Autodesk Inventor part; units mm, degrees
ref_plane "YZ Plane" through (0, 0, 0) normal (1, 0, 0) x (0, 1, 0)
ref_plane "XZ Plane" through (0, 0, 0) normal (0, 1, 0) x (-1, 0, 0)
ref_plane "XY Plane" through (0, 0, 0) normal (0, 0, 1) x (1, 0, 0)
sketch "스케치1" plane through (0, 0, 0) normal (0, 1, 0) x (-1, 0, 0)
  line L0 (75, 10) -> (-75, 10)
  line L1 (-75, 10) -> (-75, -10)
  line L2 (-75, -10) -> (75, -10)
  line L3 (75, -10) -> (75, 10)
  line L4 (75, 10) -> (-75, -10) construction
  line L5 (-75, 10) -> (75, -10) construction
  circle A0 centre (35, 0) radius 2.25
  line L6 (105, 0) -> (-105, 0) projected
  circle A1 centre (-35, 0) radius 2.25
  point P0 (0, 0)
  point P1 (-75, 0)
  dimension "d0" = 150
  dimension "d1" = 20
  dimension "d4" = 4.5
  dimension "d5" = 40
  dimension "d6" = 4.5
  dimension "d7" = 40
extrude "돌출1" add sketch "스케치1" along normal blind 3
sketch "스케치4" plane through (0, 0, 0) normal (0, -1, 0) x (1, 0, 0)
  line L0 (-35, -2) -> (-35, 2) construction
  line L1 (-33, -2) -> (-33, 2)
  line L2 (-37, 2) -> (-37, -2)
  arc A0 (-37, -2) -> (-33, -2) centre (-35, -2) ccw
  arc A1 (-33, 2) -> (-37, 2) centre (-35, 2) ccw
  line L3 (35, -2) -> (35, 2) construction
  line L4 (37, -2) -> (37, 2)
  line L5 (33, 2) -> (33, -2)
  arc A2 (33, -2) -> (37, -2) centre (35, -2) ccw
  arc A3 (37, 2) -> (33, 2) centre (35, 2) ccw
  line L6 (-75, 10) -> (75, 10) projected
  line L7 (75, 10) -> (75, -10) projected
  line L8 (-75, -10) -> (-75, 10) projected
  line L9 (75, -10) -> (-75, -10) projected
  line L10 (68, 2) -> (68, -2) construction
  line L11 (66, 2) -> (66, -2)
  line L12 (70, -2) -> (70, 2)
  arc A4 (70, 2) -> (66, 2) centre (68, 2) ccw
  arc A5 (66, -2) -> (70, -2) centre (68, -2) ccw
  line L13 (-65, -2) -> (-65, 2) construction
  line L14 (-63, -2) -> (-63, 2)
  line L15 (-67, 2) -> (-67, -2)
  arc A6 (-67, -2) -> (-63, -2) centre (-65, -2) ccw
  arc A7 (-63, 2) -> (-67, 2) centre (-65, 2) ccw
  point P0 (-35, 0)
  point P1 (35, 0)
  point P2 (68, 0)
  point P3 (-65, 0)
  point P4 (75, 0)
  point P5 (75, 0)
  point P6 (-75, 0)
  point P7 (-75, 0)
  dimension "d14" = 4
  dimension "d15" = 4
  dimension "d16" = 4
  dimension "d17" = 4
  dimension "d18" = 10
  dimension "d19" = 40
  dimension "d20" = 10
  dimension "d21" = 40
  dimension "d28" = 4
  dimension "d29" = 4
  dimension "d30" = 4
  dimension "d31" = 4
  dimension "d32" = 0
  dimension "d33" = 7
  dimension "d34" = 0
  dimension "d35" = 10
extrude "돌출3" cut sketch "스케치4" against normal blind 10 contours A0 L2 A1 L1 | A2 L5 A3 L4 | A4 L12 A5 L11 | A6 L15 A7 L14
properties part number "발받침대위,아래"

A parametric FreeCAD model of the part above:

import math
import FreeCAD as App
import Part
import Sketcher
from FreeCAD import Vector
Q = App.Units.Quantity

doc = App.newDocument("Part")
body = doc.addObject("PartDesign::Body", "Body")

# Sketch on XZ plane
sketch1 = body.newObject("Sketcher::SketchObject", "Sketch")
sketch1.AttachmentSupport = (doc.getObject("XZ_Plane"), [""])
sketch1.MapMode = "FlatFace"
sketch1.addGeometry(Part.LineSegment(Vector(-75, 10, 0), Vector(75, 10, 0)), False)
sketch1.addGeometry(Part.LineSegment(Vector(75, 10, 0), Vector(75, -10, 0)), False)
sketch1.addGeometry(Part.LineSegment(Vector(75, -10, 0), Vector(-75, -10, 0)), False)
sketch1.addGeometry(Part.LineSegment(Vector(-75, -10, 0), Vector(-75, 10, 0)), False)
sketch1.addConstraint(Sketcher.Constraint("Coincident", 0, 2, 1, 1))
sketch1.addConstraint(Sketcher.Constraint("Coincident", 1, 2, 2, 1))
sketch1.addConstraint(Sketcher.Constraint("Coincident", 2, 2, 3, 1))
sketch1.addConstraint(Sketcher.Constraint("Coincident", 3, 2, 0, 1))
sketch1.addConstraint(Sketcher.Constraint("Horizontal", 0))
sketch1.addConstraint(Sketcher.Constraint("Vertical", 1))
sketch1.addConstraint(Sketcher.Constraint("Horizontal", 2))
sketch1.addConstraint(Sketcher.Constraint("Vertical", 3))
sketch1.addConstraint(Sketcher.Constraint("Symmetric", 0, 2, 2, 2, -1, 1))
sketch1.addConstraint(Sketcher.Constraint("DistanceX", 0, 1, 0, 2, Q("150 mm")))
sketch1.addConstraint(Sketcher.Constraint("DistanceY", 1, 2, 1, 1, Q("20 mm")))
pad1 = body.newObject("PartDesign::Pad", "Pad")
pad1.Profile = sketch1
pad1.Length = 3
pad1.Reversed = True

# Sketch on XZ plane
sketch2 = body.newObject("Sketcher::SketchObject", "Sketch001")
sketch2.AttachmentSupport = (doc.getObject("XZ_Plane"), [""])
sketch2.MapMode = "FlatFace"
sketch2.addGeometry(Part.ArcOfCircle(Part.Circle(Vector(-35, -2, 0), Vector(0, 0, 1), 2), math.radians(180), math.radians(360)), False)
sketch2.addGeometry(Part.LineSegment(Vector(-33, -2, 0), Vector(-33, 2, 0)), False)
sketch2.addGeometry(Part.ArcOfCircle(Part.Circle(Vector(-35, 2, 0), Vector(0, 0, 1), 2), math.radians(0), math.radians(180)), False)
sketch2.addGeometry(Part.LineSegment(Vector(-37, 2, 0), Vector(-37, -2, 0)), False)
sketch2.addGeometry(Part.ArcOfCircle(Part.Circle(Vector(35, -2, 0), Vector(0, 0, 1), 2), math.radians(180), math.radians(360)), False)
sketch2.addGeometry(Part.LineSegment(Vector(37, -2, 0), Vector(37, 2, 0)), False)
sketch2.addGeometry(Part.ArcOfCircle(Part.Circle(Vector(35, 2, 0), Vector(0, 0, 1), 2), math.radians(0), math.radians(180)), False)
sketch2.addGeometry(Part.LineSegment(Vector(33, 2, 0), Vector(33, -2, 0)), False)
sketch2.addGeometry(Part.ArcOfCircle(Part.Circle(Vector(68, 2, 0), Vector(0, 0, 1), 2), math.radians(0), math.radians(180)), False)
sketch2.addGeometry(Part.LineSegment(Vector(66, 2, 0), Vector(66, -2, 0)), False)
sketch2.addGeometry(Part.ArcOfCircle(Part.Circle(Vector(68, -2, 0), Vector(0, 0, 1), 2), math.radians(180), math.radians(360)), False)
sketch2.addGeometry(Part.LineSegment(Vector(70, -2, 0), Vector(70, 2, 0)), False)
sketch2.addGeometry(Part.ArcOfCircle(Part.Circle(Vector(-65, -2, 0), Vector(0, 0, 1), 2), math.radians(180), math.radians(360)), False)
sketch2.addGeometry(Part.LineSegment(Vector(-63, -2, 0), Vector(-63, 2, 0)), False)
sketch2.addGeometry(Part.ArcOfCircle(Part.Circle(Vector(-65, 2, 0), Vector(0, 0, 1), 2), math.radians(0), math.radians(180)), False)
sketch2.addGeometry(Part.LineSegment(Vector(-67, 2, 0), Vector(-67, -2, 0)), False)
sketch2.addConstraint(Sketcher.Constraint("Tangent", 0, 2, 1, 1))
sketch2.addConstraint(Sketcher.Constraint("Tangent", 1, 2, 2, 1))
sketch2.addConstraint(Sketcher.Constraint("Tangent", 2, 2, 3, 1))
sketch2.addConstraint(Sketcher.Constraint("Tangent", 3, 2, 0, 1))
sketch2.addConstraint(Sketcher.Constraint("Tangent", 4, 2, 5, 1))
sketch2.addConstraint(Sketcher.Constraint("Tangent", 5, 2, 6, 1))
sketch2.addConstraint(Sketcher.Constraint("Tangent", 6, 2, 7, 1))
sketch2.addConstraint(Sketcher.Constraint("Tangent", 7, 2, 4, 1))
sketch2.addConstraint(Sketcher.Constraint("Tangent", 8, 2, 9, 1))
sketch2.addConstraint(Sketcher.Constraint("Tangent", 9, 2, 10, 1))
sketch2.addConstraint(Sketcher.Constraint("Tangent", 10, 2, 11, 1))
sketch2.addConstraint(Sketcher.Constraint("Tangent", 11, 2, 8, 1))
sketch2.addConstraint(Sketcher.Constraint("Tangent", 12, 2, 13, 1))
sketch2.addConstraint(Sketcher.Constraint("Tangent", 13, 2, 14, 1))
sketch2.addConstraint(Sketcher.Constraint("Tangent", 14, 2, 15, 1))
sketch2.addConstraint(Sketcher.Constraint("Tangent", 15, 2, 12, 1))
sketch2.addConstraint(Sketcher.Constraint("Vertical", 1))
sketch2.addConstraint(Sketcher.Constraint("Vertical", 3))
sketch2.addConstraint(Sketcher.Constraint("Vertical", 5))
sketch2.addConstraint(Sketcher.Constraint("Vertical", 7))
sketch2.addConstraint(Sketcher.Constraint("Vertical", 9))
sketch2.addConstraint(Sketcher.Constraint("Vertical", 11))
sketch2.addConstraint(Sketcher.Constraint("Vertical", 13))
sketch2.addConstraint(Sketcher.Constraint("Vertical", 15))
sketch2.addConstraint(Sketcher.Constraint("Equal", 2, 4))
sketch2.addConstraint(Sketcher.Constraint("Equal", 6, 8))
sketch2.addConstraint(Sketcher.Constraint("Equal", 10, 12))
sketch2.addConstraint(Sketcher.Constraint("Symmetric", 2, 3, 4, 3, -1, 1))
sketch2.addConstraint(Sketcher.Constraint("Horizontal", 0, 3, 4, 3))
sketch2.addConstraint(Sketcher.Constraint("Horizontal", 2, 3, 6, 3))
sketch2.addConstraint(Sketcher.Constraint("Horizontal", 6, 3, 8, 3))
sketch2.addConstraint(Sketcher.Constraint("Horizontal", 4, 3, 10, 3))
sketch2.addConstraint(Sketcher.Constraint("Horizontal", 10, 3, 12, 3))
sketch2.addConstraint(Sketcher.Constraint("Horizontal", 8, 3, 14, 3))
sketch2.addConstraint(Sketcher.Constraint("Radius", 0, Q("2 mm")))
sketch2.addConstraint(Sketcher.Constraint("DistanceY", 1, 1, 1, 2, Q("4 mm")))
sketch2.addConstraint(Sketcher.Constraint("DistanceX", 0, 3, -1, 1, Q("35 mm")))
sketch2.addConstraint(Sketcher.Constraint("DistanceX", -1, 1, 8, 3, Q("68 mm")))
sketch2.addConstraint(Sketcher.Constraint("DistanceX", 12, 3, -1, 1, Q("65 mm")))
pocket1 = body.newObject("PartDesign::Pocket", "Pocket")
pocket1.Profile = sketch2
pocket1.Length = 10

doc.recompute()
